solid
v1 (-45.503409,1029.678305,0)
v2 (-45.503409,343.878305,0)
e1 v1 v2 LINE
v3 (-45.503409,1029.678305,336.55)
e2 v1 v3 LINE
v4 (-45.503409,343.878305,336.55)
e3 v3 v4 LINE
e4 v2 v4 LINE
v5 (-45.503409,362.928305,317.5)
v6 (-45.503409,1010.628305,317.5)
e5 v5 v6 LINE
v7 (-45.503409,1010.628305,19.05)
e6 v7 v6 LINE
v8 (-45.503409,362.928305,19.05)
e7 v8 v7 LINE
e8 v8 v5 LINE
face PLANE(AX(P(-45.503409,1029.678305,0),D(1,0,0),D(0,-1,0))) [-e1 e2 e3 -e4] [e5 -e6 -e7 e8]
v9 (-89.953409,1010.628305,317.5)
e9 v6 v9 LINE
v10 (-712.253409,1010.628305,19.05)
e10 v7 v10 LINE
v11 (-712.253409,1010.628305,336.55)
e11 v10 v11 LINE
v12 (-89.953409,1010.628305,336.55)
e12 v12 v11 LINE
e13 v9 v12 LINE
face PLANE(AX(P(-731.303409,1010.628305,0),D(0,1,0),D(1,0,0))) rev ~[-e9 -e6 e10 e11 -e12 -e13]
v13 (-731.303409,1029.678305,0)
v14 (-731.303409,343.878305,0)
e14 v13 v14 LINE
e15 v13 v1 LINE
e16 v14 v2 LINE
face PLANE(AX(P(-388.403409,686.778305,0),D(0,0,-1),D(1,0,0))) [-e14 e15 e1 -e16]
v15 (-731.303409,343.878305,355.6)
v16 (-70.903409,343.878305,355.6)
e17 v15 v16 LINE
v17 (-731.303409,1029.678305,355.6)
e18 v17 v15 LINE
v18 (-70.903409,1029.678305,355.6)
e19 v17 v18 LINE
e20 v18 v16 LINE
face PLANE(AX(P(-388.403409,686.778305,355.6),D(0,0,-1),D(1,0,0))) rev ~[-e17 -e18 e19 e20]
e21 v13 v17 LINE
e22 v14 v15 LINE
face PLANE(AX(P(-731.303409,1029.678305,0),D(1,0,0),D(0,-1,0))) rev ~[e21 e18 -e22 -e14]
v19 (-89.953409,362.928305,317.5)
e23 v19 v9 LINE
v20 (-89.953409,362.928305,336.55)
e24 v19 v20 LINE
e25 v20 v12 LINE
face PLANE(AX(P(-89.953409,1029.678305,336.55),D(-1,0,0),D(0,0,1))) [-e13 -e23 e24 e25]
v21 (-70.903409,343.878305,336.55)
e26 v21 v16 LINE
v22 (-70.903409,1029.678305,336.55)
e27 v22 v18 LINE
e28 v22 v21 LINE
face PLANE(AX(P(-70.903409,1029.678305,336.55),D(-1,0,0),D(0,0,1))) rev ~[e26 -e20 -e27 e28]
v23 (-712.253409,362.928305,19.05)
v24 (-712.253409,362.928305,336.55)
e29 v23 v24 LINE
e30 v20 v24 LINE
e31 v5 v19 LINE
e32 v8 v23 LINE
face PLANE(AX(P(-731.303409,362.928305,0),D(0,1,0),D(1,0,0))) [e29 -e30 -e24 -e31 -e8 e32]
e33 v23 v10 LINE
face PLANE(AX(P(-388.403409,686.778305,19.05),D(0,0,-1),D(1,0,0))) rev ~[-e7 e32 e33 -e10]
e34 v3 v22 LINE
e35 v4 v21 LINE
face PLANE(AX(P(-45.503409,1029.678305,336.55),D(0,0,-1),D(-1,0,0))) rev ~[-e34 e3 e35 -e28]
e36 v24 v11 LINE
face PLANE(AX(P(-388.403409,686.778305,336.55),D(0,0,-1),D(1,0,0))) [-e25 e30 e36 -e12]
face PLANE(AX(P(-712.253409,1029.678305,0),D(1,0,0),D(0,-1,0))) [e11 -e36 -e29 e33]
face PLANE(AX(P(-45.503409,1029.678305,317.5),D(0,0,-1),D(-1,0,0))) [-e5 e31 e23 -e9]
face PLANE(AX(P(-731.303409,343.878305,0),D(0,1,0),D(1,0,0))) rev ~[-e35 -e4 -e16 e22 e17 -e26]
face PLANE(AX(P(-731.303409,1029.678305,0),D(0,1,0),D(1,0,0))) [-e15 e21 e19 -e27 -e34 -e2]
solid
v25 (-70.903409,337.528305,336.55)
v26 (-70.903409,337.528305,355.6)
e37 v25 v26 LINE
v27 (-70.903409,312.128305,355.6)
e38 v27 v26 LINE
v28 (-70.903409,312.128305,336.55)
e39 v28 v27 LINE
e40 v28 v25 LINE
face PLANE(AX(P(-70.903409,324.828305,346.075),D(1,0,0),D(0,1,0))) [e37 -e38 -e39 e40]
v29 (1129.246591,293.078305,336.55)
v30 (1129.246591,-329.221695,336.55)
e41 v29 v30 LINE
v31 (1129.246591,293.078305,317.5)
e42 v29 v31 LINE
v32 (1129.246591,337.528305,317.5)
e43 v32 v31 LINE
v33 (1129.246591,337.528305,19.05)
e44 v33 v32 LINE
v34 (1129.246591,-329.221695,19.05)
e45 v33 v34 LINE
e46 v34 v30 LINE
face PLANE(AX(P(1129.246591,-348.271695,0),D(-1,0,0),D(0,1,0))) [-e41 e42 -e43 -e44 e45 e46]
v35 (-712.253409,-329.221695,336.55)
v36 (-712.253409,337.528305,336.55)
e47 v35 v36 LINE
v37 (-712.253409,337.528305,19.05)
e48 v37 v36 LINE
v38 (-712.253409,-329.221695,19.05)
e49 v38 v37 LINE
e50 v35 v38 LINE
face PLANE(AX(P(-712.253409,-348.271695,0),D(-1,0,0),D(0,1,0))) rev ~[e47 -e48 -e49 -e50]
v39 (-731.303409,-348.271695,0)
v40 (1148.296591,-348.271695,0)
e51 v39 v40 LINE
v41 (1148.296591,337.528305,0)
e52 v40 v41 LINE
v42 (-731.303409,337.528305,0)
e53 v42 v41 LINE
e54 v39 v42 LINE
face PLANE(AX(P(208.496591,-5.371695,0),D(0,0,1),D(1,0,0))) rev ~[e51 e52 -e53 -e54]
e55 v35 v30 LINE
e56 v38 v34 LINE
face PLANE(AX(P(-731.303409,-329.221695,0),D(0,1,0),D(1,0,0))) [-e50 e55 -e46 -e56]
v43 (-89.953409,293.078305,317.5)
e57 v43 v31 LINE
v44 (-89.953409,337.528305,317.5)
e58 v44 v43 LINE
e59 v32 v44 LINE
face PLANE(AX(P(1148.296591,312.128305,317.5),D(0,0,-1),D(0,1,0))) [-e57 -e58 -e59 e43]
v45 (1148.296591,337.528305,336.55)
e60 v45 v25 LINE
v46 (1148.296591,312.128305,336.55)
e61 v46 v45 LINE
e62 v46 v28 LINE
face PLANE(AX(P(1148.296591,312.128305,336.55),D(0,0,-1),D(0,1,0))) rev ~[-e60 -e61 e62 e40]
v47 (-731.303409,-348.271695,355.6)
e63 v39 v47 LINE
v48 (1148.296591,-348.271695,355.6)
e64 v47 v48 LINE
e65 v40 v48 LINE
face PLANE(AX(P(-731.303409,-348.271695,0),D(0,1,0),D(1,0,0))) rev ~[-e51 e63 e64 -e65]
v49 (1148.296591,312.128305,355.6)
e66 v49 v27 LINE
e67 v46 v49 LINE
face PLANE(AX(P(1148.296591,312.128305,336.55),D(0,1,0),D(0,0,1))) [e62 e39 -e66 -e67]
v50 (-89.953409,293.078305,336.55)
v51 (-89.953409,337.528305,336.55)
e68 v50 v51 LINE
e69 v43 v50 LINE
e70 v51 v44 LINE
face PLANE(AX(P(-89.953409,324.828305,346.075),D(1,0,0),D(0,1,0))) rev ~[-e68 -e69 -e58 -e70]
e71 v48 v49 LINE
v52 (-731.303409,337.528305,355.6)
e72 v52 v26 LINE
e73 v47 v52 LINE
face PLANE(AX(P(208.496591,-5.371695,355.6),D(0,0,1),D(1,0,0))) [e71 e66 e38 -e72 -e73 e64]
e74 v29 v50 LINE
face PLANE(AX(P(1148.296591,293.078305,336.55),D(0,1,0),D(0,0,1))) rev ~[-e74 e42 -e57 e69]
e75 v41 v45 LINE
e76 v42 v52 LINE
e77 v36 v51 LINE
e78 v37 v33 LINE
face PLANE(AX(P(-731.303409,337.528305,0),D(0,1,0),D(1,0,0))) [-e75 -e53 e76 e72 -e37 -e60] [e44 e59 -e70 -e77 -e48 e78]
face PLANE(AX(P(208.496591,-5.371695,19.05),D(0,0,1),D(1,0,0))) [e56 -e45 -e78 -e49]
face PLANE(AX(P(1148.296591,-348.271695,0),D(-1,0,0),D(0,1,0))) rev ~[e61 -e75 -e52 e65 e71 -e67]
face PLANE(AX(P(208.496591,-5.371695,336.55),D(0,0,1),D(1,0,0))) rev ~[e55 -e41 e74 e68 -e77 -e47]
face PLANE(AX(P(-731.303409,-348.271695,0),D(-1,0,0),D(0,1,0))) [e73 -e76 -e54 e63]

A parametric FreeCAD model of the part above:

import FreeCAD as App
import Part
import Sketcher

V = App.Vector
Q = App.Units.Quantity


def faces_at(feature, points):
    """Names of the faces that lie closest to the given points."""
    faces = feature.Shape.Faces
    near = lambda p: min(range(len(faces)), key=lambda i: faces[i].distToShape(Part.Vertex(*p))[0])
    return sorted({f"Face{near(p) + 1}" for p in points})

doc = App.newDocument("Part")
body = doc.addObject("PartDesign::Body", "Body")

# Sketch on XY plane
sketch1 = body.newObject("Sketcher::SketchObject", "Sketch")
sketch1.AttachmentSupport = (doc.getObject("XY_Plane"), [""])
sketch1.MapMode = "FlatFace"
sketch1.addGeometry([
    Part.LineSegment(V(-731, 338, 0), V(-731, -348, 0)),
    Part.LineSegment(V(-731, -348, 0), V(1148, -348, 0)),
    Part.LineSegment(V(1148, -348, 0), V(1148, 338, 0)),
    Part.LineSegment(V(1148, 338, 0), V(-731, 338, 0)),
], False)
sketch1.addConstraint([
    Sketcher.Constraint("Coincident", 0, 2, 1, 1),
    Sketcher.Constraint("Coincident", 1, 2, 2, 1),
    Sketcher.Constraint("Coincident", 2, 2, 3, 1),
    Sketcher.Constraint("Coincident", 3, 2, 0, 1),
    Sketcher.Constraint("Vertical", 0),
    Sketcher.Constraint("Horizontal", 1),
    Sketcher.Constraint("Vertical", 2),
    Sketcher.Constraint("Horizontal", 3),
    Sketcher.Constraint("DistanceX", 1, 1, 1, 2, Q("74 in")),
    Sketcher.Constraint("DistanceY", 0, 2, 0, 1, Q("27 in")),
    Sketcher.Constraint("DistanceX", 0, 2, -1, 1, Q("731.303409 mm")),
    Sketcher.Constraint("DistanceY", 0, 2, -1, 1, Q("348.271695 mm")),
])
pad1 = body.newObject("PartDesign::Pad", "Pad")
pad1.Profile = sketch1
pad1.Length = Q("14 in")

# Sketch on YZ plane
sketch2 = body.newObject("Sketcher::SketchObject", "Sketch001")
sketch2.AttachmentSupport = (doc.getObject("YZ_Plane"), [""])
sketch2.MapMode = "FlatFace"
sketch2.AttachmentOffset = App.Placement(V(0, 0, 1148.296591), App.Rotation())
sketch2.addGeometry([
    Part.LineSegment(V(312, 356, 0), V(312, 337, 0)),
    Part.LineSegment(V(312, 337, 0), V(338, 337, 0)),
    Part.LineSegment(V(338, 337, 0), V(338, 356, 0)),
    Part.LineSegment(V(338, 356, 0), V(312, 356, 0)),
], False)
sketch2.addConstraint([
    Sketcher.Constraint("Coincident", 0, 2, 1, 1),
    Sketcher.Constraint("Coincident", 1, 2, 2, 1),
    Sketcher.Constraint("Coincident", 2, 2, 3, 1),
    Sketcher.Constraint("Coincident", 3, 2, 0, 1),
    Sketcher.Constraint("Vertical", 0),
    Sketcher.Constraint("Horizontal", 1),
    Sketcher.Constraint("Vertical", 2),
    Sketcher.Constraint("Horizontal", 3),
    Sketcher.Constraint("DistanceX", 1, 1, 1, 2, Q("1 in")),
    Sketcher.Constraint("DistanceY", -1, 1, 2, 2, Q("14 in")),
    Sketcher.Constraint("DistanceY", 0, 2, 0, 1, Q("0.75 in")),
    Sketcher.Constraint("DistanceX", -1, 1, 0, 2, Q("312.128305 mm")),
])
pocket1 = body.newObject("PartDesign::Pocket", "Pocket")
pocket1.Profile = sketch2
pocket1.Length = Q("48 in")
doc.recompute()

thickness = body.newObject("PartDesign::Thickness", "Thickness")
thickness.Base = (pocket1, faces_at(pocket1, [(208.497, 337.528, 177.8)]))
thickness.Value = Q("0.75 in")
thickness.Reversed = True
thickness.Join = "Intersection"
body2 = doc.addObject("PartDesign::Body", "Body001")

# Sketch on XY plane
sketch3 = body2.newObject("Sketcher::SketchObject", "Sketch002")
sketch3.AttachmentSupport = (doc.getObject("XY_Plane001"), [""])
sketch3.MapMode = "FlatFace"
sketch3.addGeometry([
    Part.LineSegment(V(-731, 344, 0), V(-731, 1030, 0)),
    Part.LineSegment(V(-731, 1030, 0), V(-46, 1030, 0)),
    Part.LineSegment(V(-46, 1030, 0), V(-46, 344, 0)),
    Part.LineSegment(V(-46, 344, 0), V(-731, 344, 0)),
], False)
sketch3.addConstraint([
    Sketcher.Constraint("Coincident", 0, 2, 1, 1),
    Sketcher.Constraint("Coincident", 1, 2, 2, 1),
    Sketcher.Constraint("Coincident", 2, 2, 3, 1),
    Sketcher.Constraint("Coincident", 3, 2, 0, 1),
    Sketcher.Constraint("Vertical", 0),
    Sketcher.Constraint("Horizontal", 1),
    Sketcher.Constraint("Vertical", 2),
    Sketcher.Constraint("Horizontal", 3),
    Sketcher.Constraint("Equal", 3, 0),
    Sketcher.Constraint("DistanceX", 1, 1, 1, 2, Q("27 in")),
    Sketcher.Constraint("DistanceX", 0, 2, -1, 1, Q("731.303409 mm")),
    Sketcher.Constraint("DistanceY", -1, 1, 0, 2, Q("1029.678305 mm")),
])
pad2 = body2.newObject("PartDesign::Pad", "Pad001")
pad2.Profile = sketch3
pad2.Length = Q("14 in")

# Sketch on XZ plane
sketch4 = body2.newObject("Sketcher::SketchObject", "Sketch003")
sketch4.AttachmentSupport = (doc.getObject("XZ_Plane001"), [""])
sketch4.MapMode = "FlatFace"
sketch4.AttachmentOffset = App.Placement(V(0, 0, -1029.678305), App.Rotation())
sketch4.addGeometry([
    Part.LineSegment(V(-46, 356, 0), V(-46, 337, 0)),
    Part.LineSegment(V(-46, 337, 0), V(-71, 337, 0)),
    Part.LineSegment(V(-71, 337, 0), V(-71, 356, 0)),
    Part.LineSegment(V(-71, 356, 0), V(-46, 356, 0)),
], False)
sketch4.addConstraint([
    Sketcher.Constraint("Coincident", 0, 2, 1, 1),
    Sketcher.Constraint("Coincident", 1, 2, 2, 1),
    Sketcher.Constraint("Coincident", 2, 2, 3, 1),
    Sketcher.Constraint("Coincident", 3, 2, 0, 1),
    Sketcher.Constraint("Vertical", 0),
    Sketcher.Constraint("Horizontal", 1),
    Sketcher.Constraint("Vertical", 2),
    Sketcher.Constraint("Horizontal", 3),
    Sketcher.Constraint("DistanceX", 1, 2, 1, 1, Q("1 in")),
    Sketcher.Constraint("DistanceY", -1, 1, 2, 2, Q("14 in")),
    Sketcher.Constraint("DistanceY", 0, 2, 0, 1, Q("0.75 in")),
    Sketcher.Constraint("DistanceX", 0, 2, -1, 1, Q("45.503409 mm")),
])
pocket2 = body2.newObject("PartDesign::Pocket", "Pocket001")
pocket2.Profile = sketch4
pocket2.Type = "ThroughAll"
pocket2.Reversed = True
doc.recompute()

thickness2 = body2.newObject("PartDesign::Thickness", "Thickness001")
thickness2.Base = (pocket2, faces_at(pocket2, [(-45.503, 686.778, 168.275)]))
thickness2.Value = Q("0.75 in")
thickness2.Reversed = True
thickness2.Join = "Intersection"

doc.recompute()
